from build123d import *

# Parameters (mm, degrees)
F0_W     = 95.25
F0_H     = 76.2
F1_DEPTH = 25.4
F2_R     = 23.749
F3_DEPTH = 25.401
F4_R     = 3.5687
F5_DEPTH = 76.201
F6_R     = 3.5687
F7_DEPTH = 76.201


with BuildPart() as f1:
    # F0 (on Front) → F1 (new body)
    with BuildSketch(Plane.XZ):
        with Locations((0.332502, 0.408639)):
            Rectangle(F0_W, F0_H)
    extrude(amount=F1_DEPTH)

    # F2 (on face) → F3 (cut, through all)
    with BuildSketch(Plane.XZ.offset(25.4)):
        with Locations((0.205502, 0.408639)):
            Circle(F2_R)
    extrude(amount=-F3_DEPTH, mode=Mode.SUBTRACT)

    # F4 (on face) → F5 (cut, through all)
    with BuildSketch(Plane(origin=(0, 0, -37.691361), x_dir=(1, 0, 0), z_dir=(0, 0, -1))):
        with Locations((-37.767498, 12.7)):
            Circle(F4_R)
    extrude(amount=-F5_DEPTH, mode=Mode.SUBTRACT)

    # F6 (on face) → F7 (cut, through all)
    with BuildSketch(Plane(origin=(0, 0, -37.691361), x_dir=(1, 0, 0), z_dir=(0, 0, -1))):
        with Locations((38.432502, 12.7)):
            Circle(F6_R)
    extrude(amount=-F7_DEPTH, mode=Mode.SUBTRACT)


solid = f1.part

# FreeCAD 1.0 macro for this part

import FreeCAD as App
import Part
import Sketcher

V = App.Vector
Q = App.Units.Quantity


def add_polygon(sketch, points):
    """Adds a closed chain of lines whose ends are joined by coincident constraints."""
    first, n = sketch.GeometryCount, len(points)
    for a, b in zip(points, points[1:] + points[:1]):
        sketch.addGeometry(Part.LineSegment(App.Vector(*a, 0), App.Vector(*b, 0)), False)
    for i in range(n):
        sketch.addConstraint(Sketcher.Constraint("Coincident", first + i, 2, first + (i + 1) % n, 1))

doc = App.newDocument("Part")
params = doc.addObject("Spreadsheet::Sheet", "Params")
for row, (alias, value) in enumerate([
    ("sketch1_height", "3 in"),
    ("sketch1_width", "3.75 in"),
    ("pad1_length", "1 in"),
    ("sketch2_diameter", "1.87 in"),
    ("sketch3_diameter", "0.281 in"),
    ("sketch4_diameter", "0.281 in"),
], start=1):
    params.set(f"A{row}", alias)
    params.set(f"B{row}", "=" + value)
    params.setAlias(f"B{row}", alias)

body = doc.addObject("PartDesign::Body", "Body")

# Sketch on XZ plane
sketch1 = body.newObject("Sketcher::SketchObject", "Sketch")
sketch1.AttachmentSupport = (doc.getObject("XZ_Plane"), [""])
sketch1.MapMode = "FlatFace"
add_polygon(sketch1, [(-47.292498, 38.508639), (-47.292498, -37.691361), (47.957502, -37.691361), (47.957502, 38.508639)])  # lines 0-3
sketch1.addConstraint([
    Sketcher.Constraint("Vertical", 0),
    Sketcher.Constraint("Horizontal", 1),
    Sketcher.Constraint("Vertical", 2),
    Sketcher.Constraint("Horizontal", 3),
    Sketcher.Constraint("DistanceY", 0, 2, 0, 1, Q("3 in")),
    Sketcher.Constraint("DistanceX", 1, 1, 1, 2, Q("3.75 in")),
    Sketcher.Constraint("DistanceX", 0, 2, -1, 1, 47.292498),
    Sketcher.Constraint("DistanceY", 0, 2, -1, 1, 37.691361),
])
sketch1.setExpression("Constraints[8]", "Params.sketch1_height")
sketch1.setExpression("Constraints[9]", "Params.sketch1_width")
pad1 = body.newObject("PartDesign::Pad", "Pad")
pad1.Profile = sketch1
pad1.setExpression("Length", "Params.pad1_length")

# Sketch on XZ plane
sketch2 = body.newObject("Sketcher::SketchObject", "Sketch001")
sketch2.AttachmentSupport = (doc.getObject("XZ_Plane"), [""])
sketch2.MapMode = "FlatFace"
sketch2.AttachmentOffset = App.Placement(V(0, 0, 1 * 25.4), App.Rotation())
sketch2.addGeometry(Part.Circle(V(0.205502, 0.408639, 0), V(0, 0, 1), 23.749), False)
sketch2.addConstraint([
    Sketcher.Constraint("Diameter", 0, Q("1.87 in")),
    Sketcher.Constraint("DistanceY", -1, 1, 0, 3, 0.408639),
    Sketcher.Constraint("DistanceX", -1, 1, 0, 3, 0.205502),
])
sketch2.setExpression("Constraints[0]", "Params.sketch2_diameter")
pocket1 = body.newObject("PartDesign::Pocket", "Pocket")
pocket1.Profile = sketch2
pocket1.Type = "ThroughAll"

# Sketch on XY plane
sketch3 = body.newObject("Sketcher::SketchObject", "Sketch002")
sketch3.AttachmentSupport = (doc.getObject("XY_Plane"), [""])
sketch3.MapMode = "FlatFace"
sketch3.AttachmentOffset = App.Placement(V(0, 0, -37.691361), App.Rotation())
sketch3.addGeometry(Part.Circle(V(-37.767498, -12.7, 0), V(0, 0, 1), 3.5687), False)
sketch3.addConstraint([
    Sketcher.Constraint("Diameter", 0, Q("0.281 in")),
    Sketcher.Constraint("DistanceY", 0, 3, -1, 1, Q("0.5 in")),
    Sketcher.Constraint("DistanceX", 0, 3, -1, 1, 37.767498),
])
sketch3.setExpression("Constraints[0]", "Params.sketch3_diameter")
pocket2 = body.newObject("PartDesign::Pocket", "Pocket001")
pocket2.Profile = sketch3
pocket2.Type = "ThroughAll"
pocket2.Reversed = True

# Sketch on XY plane
sketch4 = body.newObject("Sketcher::SketchObject", "Sketch003")
sketch4.AttachmentSupport = (doc.getObject("XY_Plane"), [""])
sketch4.MapMode = "FlatFace"
sketch4.AttachmentOffset = App.Placement(V(0, 0, -37.691361), App.Rotation())
sketch4.addGeometry(Part.Circle(V(38.432502, -12.7, 0), V(0, 0, 1), 3.5687), False)
sketch4.addConstraint([
    Sketcher.Constraint("Diameter", 0, Q("0.281 in")),
    Sketcher.Constraint("DistanceY", 0, 3, -1, 1, Q("0.5 in")),
    Sketcher.Constraint("DistanceX", -1, 1, 0, 3, 38.432502),
])
sketch4.setExpression("Constraints[0]", "Params.sketch4_diameter")
pocket3 = body.newObject("PartDesign::Pocket", "Pocket002")
pocket3.Profile = sketch4
pocket3.Type = "ThroughAll"
pocket3.Reversed = True

doc.recompute()
